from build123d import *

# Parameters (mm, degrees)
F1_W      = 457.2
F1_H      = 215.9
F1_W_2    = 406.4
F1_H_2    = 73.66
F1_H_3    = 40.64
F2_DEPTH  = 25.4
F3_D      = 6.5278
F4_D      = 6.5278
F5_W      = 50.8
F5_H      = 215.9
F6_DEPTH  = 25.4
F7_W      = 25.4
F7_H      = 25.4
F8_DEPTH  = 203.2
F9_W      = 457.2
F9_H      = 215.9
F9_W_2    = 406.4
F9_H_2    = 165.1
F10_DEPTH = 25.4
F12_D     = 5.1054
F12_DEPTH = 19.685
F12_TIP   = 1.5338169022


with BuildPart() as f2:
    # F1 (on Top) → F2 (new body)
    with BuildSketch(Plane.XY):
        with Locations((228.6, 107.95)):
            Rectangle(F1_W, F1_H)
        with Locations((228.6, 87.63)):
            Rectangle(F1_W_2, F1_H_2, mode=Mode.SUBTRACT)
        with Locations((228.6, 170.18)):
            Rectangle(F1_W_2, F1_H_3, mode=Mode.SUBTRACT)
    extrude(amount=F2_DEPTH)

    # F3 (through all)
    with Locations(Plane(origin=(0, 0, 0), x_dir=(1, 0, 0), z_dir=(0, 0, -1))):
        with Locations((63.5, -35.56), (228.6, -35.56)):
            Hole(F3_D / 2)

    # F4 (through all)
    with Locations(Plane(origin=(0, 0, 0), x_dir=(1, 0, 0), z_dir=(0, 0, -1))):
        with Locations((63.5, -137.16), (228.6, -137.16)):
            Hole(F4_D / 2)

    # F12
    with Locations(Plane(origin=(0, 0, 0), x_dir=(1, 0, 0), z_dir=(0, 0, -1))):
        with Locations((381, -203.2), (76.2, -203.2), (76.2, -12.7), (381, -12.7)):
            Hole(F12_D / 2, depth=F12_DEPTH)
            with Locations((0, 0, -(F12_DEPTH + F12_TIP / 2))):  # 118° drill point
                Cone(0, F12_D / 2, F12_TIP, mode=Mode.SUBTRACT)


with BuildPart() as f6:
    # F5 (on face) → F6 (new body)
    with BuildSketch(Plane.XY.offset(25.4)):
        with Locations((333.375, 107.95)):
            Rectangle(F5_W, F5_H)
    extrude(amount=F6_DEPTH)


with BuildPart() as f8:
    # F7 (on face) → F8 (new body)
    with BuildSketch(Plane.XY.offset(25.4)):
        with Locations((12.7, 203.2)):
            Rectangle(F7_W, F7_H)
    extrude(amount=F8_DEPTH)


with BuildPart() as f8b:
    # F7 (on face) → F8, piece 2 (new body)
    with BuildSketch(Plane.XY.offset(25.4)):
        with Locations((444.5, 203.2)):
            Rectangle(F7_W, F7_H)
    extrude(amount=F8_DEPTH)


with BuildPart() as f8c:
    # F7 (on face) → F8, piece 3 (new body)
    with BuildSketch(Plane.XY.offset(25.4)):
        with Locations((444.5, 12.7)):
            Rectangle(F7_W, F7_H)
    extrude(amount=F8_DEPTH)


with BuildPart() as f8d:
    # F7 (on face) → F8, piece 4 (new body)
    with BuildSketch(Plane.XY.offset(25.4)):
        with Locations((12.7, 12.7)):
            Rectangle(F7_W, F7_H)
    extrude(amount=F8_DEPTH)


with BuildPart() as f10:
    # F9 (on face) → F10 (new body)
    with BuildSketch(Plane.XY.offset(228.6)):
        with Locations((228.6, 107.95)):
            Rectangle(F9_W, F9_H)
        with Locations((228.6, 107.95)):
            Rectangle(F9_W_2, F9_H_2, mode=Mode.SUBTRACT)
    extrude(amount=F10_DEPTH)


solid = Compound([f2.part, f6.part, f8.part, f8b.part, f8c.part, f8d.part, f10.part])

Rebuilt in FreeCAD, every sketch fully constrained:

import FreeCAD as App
import Part
import Sketcher

V = App.Vector
Q = App.Units.Quantity


def add_polygon(sketch, points):
    """Adds a closed chain of lines whose ends are joined by coincident constraints."""
    first, n = sketch.GeometryCount, len(points)
    for a, b in zip(points, points[1:] + points[:1]):
        sketch.addGeometry(Part.LineSegment(App.Vector(*a, 0), App.Vector(*b, 0)), False)
    for i in range(n):
        sketch.addConstraint(Sketcher.Constraint("Coincident", first + i, 2, first + (i + 1) % n, 1))

doc = App.newDocument("Part")
body = doc.addObject("PartDesign::Body", "Body")

# Sketch on XY plane
sketch1 = body.newObject("Sketcher::SketchObject", "Sketch")
sketch1.AttachmentSupport = (doc.getObject("XY_Plane"), [""])
sketch1.MapMode = "FlatFace"
add_polygon(sketch1, [(0, 216), (0, 0), (457, 0), (457, 216)])  # lines 0-3
add_polygon(sketch1, [(432, 51), (25, 51), (25, 124), (432, 124)])  # lines 4-7
add_polygon(sketch1, [(432, 150), (25, 150), (25, 190), (432, 190)])  # lines 8-11
sketch1.addConstraint(Sketcher.Constraint("Vertical", 0))
sketch1.addConstraint(Sketcher.Constraint("Horizontal", 1))
sketch1.addConstraint(Sketcher.Constraint("Vertical", 2))
sketch1.addConstraint(Sketcher.Constraint("Horizontal", 3))
sketch1.addConstraint(Sketcher.Constraint("Horizontal", 4))
sketch1.addConstraint(Sketcher.Constraint("Vertical", 5))
sketch1.addConstraint(Sketcher.Constraint("Horizontal", 6))
sketch1.addConstraint(Sketcher.Constraint("Vertical", 7))
sketch1.addConstraint(Sketcher.Constraint("Horizontal", 8))
sketch1.addConstraint(Sketcher.Constraint("Vertical", 9))
sketch1.addConstraint(Sketcher.Constraint("Horizontal", 10))
sketch1.addConstraint(Sketcher.Constraint("Vertical", 11))
sketch1.addConstraint(Sketcher.Constraint("Coincident", 0, 2, -1, 1))
sketch1.addConstraint(Sketcher.Constraint("Vertical", 5, 2, 8, 2))
sketch1.addConstraint(Sketcher.Constraint("Vertical", 7, 2, 10, 2))
sketch1.addConstraint(Sketcher.Constraint("DistanceX", 1, 1, 1, 2, Q("18 in")))
sketch1.addConstraint(Sketcher.Constraint("DistanceX", 4, 2, 4, 1, Q("16 in")))
sketch1.addConstraint(Sketcher.Constraint("DistanceY", 0, 2, 0, 1, Q("8.5 in")))
sketch1.addConstraint(Sketcher.Constraint("DistanceY", 5, 1, 5, 2, Q("2.9 in")))
sketch1.addConstraint(Sketcher.Constraint("DistanceY", 9, 1, 9, 2, Q("1.6 in")))
sketch1.addConstraint(Sketcher.Constraint("DistanceX", -1, 1, 4, 2, Q("1 in")))
sketch1.addConstraint(Sketcher.Constraint("DistanceY", -1, 1, 4, 2, Q("2 in")))
sketch1.addConstraint(Sketcher.Constraint("DistanceY", 5, 2, 8, 2, Q("1 in")))
pad1 = body.newObject("PartDesign::Pad", "Pad")
pad1.Profile = sketch1
pad1.Length = Q("1 in")

# Sketch on XY plane
sketch2 = body.newObject("Sketcher::SketchObject", "Sketch001")
sketch2.AttachmentSupport = (doc.getObject("XY_Plane"), [""])
sketch2.MapMode = "FlatFace"
sketch2.addGeometry(Part.Circle(V(63.5, 35.6, 0), V(0, 0, 1), 3.3), False)
sketch2.addGeometry(Part.Circle(V(228.6, 35.6, 0), V(0, 0, 1), 3.3), False)
sketch2.addConstraint(Sketcher.Constraint("Equal", 0, 1))
sketch2.addConstraint(Sketcher.Constraint("Horizontal", 0, 3, 1, 3))
sketch2.addConstraint(Sketcher.Constraint("Diameter", 0, Q("0.257 in")))
sketch2.addConstraint(Sketcher.Constraint("DistanceX", -1, 1, 1, 3, Q("9 in")))
sketch2.addConstraint(Sketcher.Constraint("DistanceX", -1, 1, 0, 3, Q("2.5 in")))
sketch2.addConstraint(Sketcher.Constraint("DistanceY", -1, 1, 0, 3, Q("1.4 in")))
doc.recompute()
hole = body.newObject("PartDesign::Hole", "Hole")
hole.Profile = sketch2
hole.ThreadType = "None"
hole.Diameter = Q("0.257 in")
hole.DepthType = "ThroughAll"
hole.Reversed = True

# Sketch on XY plane
sketch3 = body.newObject("Sketcher::SketchObject", "Sketch002")
sketch3.AttachmentSupport = (doc.getObject("XY_Plane"), [""])
sketch3.MapMode = "FlatFace"
sketch3.addGeometry(Part.Circle(V(63.5, 137.2, 0), V(0, 0, 1), 3.3), False)
sketch3.addGeometry(Part.Circle(V(228.6, 137.2, 0), V(0, 0, 1), 3.3), False)
sketch3.addConstraint(Sketcher.Constraint("Equal", 0, 1))
sketch3.addConstraint(Sketcher.Constraint("Horizontal", 0, 3, 1, 3))
sketch3.addConstraint(Sketcher.Constraint("Diameter", 0, Q("0.257 in")))
sketch3.addConstraint(Sketcher.Constraint("DistanceX", -1, 1, 1, 3, Q("9 in")))
sketch3.addConstraint(Sketcher.Constraint("DistanceX", -1, 1, 0, 3, Q("2.5 in")))
sketch3.addConstraint(Sketcher.Constraint("DistanceY", -1, 1, 0, 3, Q("5.4 in")))
doc.recompute()
hole2 = body.newObject("PartDesign::Hole", "Hole001")
hole2.Profile = sketch3
hole2.ThreadType = "None"
hole2.Diameter = Q("0.257 in")
hole2.DepthType = "ThroughAll"
hole2.Reversed = True

# Sketch on XY plane
sketch4 = body.newObject("Sketcher::SketchObject", "Sketch003")
sketch4.AttachmentSupport = (doc.getObject("XY_Plane"), [""])
sketch4.MapMode = "FlatFace"
sketch4.addGeometry(Part.Circle(V(381, 203.2, 0), V(0, 0, 1), 2.6), False)
sketch4.addGeometry(Part.Circle(V(76.2, 203.2, 0), V(0, 0, 1), 2.6), False)
sketch4.addGeometry(Part.Circle(V(76.2, 12.7, 0), V(0, 0, 1), 2.6), False)
sketch4.addGeometry(Part.Circle(V(381, 12.7, 0), V(0, 0, 1), 2.6), False)
sketch4.addConstraint(Sketcher.Constraint("Equal", 0, 1))
sketch4.addConstraint(Sketcher.Constraint("Equal", 1, 2))
sketch4.addConstraint(Sketcher.Constraint("Equal", 2, 3))
sketch4.addConstraint(Sketcher.Constraint("Horizontal", 0, 3, 1, 3))
sketch4.addConstraint(Sketcher.Constraint("Horizontal", 2, 3, 3, 3))
sketch4.addConstraint(Sketcher.Constraint("Vertical", 1, 3, 2, 3))
sketch4.addConstraint(Sketcher.Constraint("Vertical", 0, 3, 3, 3))
sketch4.addConstraint(Sketcher.Constraint("Diameter", 0, Q("0.201 in")))
sketch4.addConstraint(Sketcher.Constraint("DistanceX", -1, 1, 0, 3, Q("15 in")))
sketch4.addConstraint(Sketcher.Constraint("DistanceY", -1, 1, 0, 3, Q("8 in")))
sketch4.addConstraint(Sketcher.Constraint("DistanceX", -1, 1, 1, 3, Q("3 in")))
sketch4.addConstraint(Sketcher.Constraint("DistanceY", -1, 1, 2, 3, Q("0.5 in")))
doc.recompute()
hole3 = body.newObject("PartDesign::Hole", "Hole002")
hole3.Profile = sketch4
hole3.ThreadType = "None"
hole3.Diameter = Q("0.201 in")
hole3.DepthType = "Dimension"
hole3.Depth = Q("0.775 in")
hole3.DrillPoint = "Angled"
hole3.DrillPointAngle = 118
hole3.Reversed = True
body2 = doc.addObject("PartDesign::Body", "Body001")

# Sketch on XY plane
sketch5 = body2.newObject("Sketcher::SketchObject", "Sketch004")
sketch5.AttachmentSupport = (doc.getObject("XY_Plane001"), [""])
sketch5.MapMode = "FlatFace"
sketch5.AttachmentOffset = App.Placement(V(0, 0, 1 * 25.4), App.Rotation())
add_polygon(sketch5, [(308, 216), (308, 0), (359, 0), (359, 216)])  # lines 0-3
sketch5.addConstraint(Sketcher.Constraint("Vertical", 0))
sketch5.addConstraint(Sketcher.Constraint("Horizontal", 1))
sketch5.addConstraint(Sketcher.Constraint("Vertical", 2))
sketch5.addConstraint(Sketcher.Constraint("Horizontal", 3))
sketch5.addConstraint(Sketcher.Constraint("PointOnObject", 0, 2, -1))
sketch5.addConstraint(Sketcher.Constraint("DistanceX", 1, 1, 1, 2, Q("2 in")))
sketch5.addConstraint(Sketcher.Constraint("DistanceY", 0, 2, 0, 1, Q("8.5 in")))
sketch5.addConstraint(Sketcher.Constraint("DistanceX", -1, 1, 0, 2, Q("12.125 in")))
pad2 = body2.newObject("PartDesign::Pad", "Pad001")
pad2.Profile = sketch5
pad2.Length = Q("1 in")
body3 = doc.addObject("PartDesign::Body", "Body002")

# Sketch on XY plane
sketch6 = body3.newObject("Sketcher::SketchObject", "Sketch005")
sketch6.AttachmentSupport = (doc.getObject("XY_Plane002"), [""])
sketch6.MapMode = "FlatFace"
sketch6.AttachmentOffset = App.Placement(V(0, 0, 1 * 25.4), App.Rotation())
add_polygon(sketch6, [(0, 216), (0, 190), (25, 190), (25, 216)])  # lines 0-3
sketch6.addConstraint(Sketcher.Constraint("Vertical", 0))
sketch6.addConstraint(Sketcher.Constraint("Horizontal", 1))
sketch6.addConstraint(Sketcher.Constraint("Vertical", 2))
sketch6.addConstraint(Sketcher.Constraint("Horizontal", 3))
sketch6.addConstraint(Sketcher.Constraint("PointOnObject", 0, 2, -2))
sketch6.addConstraint(Sketcher.Constraint("Equal", 3, 0))
sketch6.addConstraint(Sketcher.Constraint("DistanceX", 1, 1, 1, 2, Q("1 in")))
sketch6.addConstraint(Sketcher.Constraint("DistanceY", -1, 1, 0, 2, Q("7.5 in")))
pad3 = body3.newObject("PartDesign::Pad", "Pad002")
pad3.Profile = sketch6
pad3.Length = Q("8 in")
body4 = doc.addObject("PartDesign::Body", "Body003")

# Sketch on XY plane
sketch7 = body4.newObject("Sketcher::SketchObject", "Sketch006")
sketch7.AttachmentSupport = (doc.getObject("XY_Plane003"), [""])
sketch7.MapMode = "FlatFace"
sketch7.AttachmentOffset = App.Placement(V(0, 0, 1 * 25.4), App.Rotation())
add_polygon(sketch7, [(432, 216), (432, 190), (457, 190), (457, 216)])  # lines 0-3
sketch7.addConstraint(Sketcher.Constraint("Vertical", 0))
sketch7.addConstraint(Sketcher.Constraint("Horizontal", 1))
sketch7.addConstraint(Sketcher.Constraint("Vertical", 2))
sketch7.addConstraint(Sketcher.Constraint("Horizontal", 3))
sketch7.addConstraint(Sketcher.Constraint("Equal", 3, 0))
sketch7.addConstraint(Sketcher.Constraint("DistanceX", 1, 1, 1, 2, Q("1 in")))
sketch7.addConstraint(Sketcher.Constraint("DistanceX", -1, 1, 0, 2, Q("17 in")))
sketch7.addConstraint(Sketcher.Constraint("DistanceY", -1, 1, 0, 2, Q("7.5 in")))
pad4 = body4.newObject("PartDesign::Pad", "Pad003")
pad4.Profile = sketch7
pad4.Length = Q("8 in")
body5 = doc.addObject("PartDesign::Body", "Body004")

# Sketch on XY plane
sketch8 = body5.newObject("Sketcher::SketchObject", "Sketch007")
sketch8.AttachmentSupport = (doc.getObject("XY_Plane004"), [""])
sketch8.MapMode = "FlatFace"
sketch8.AttachmentOffset = App.Placement(V(0, 0, 1 * 25.4), App.Rotation())
add_polygon(sketch8, [(432, 25), (432, 0), (457, 0), (457, 25)])  # lines 0-3
sketch8.addConstraint(Sketcher.Constraint("Vertical", 0))
sketch8.addConstraint(Sketcher.Constraint("Horizontal", 1))
sketch8.addConstraint(Sketcher.Constraint("Vertical", 2))
sketch8.addConstraint(Sketcher.Constraint("Horizontal", 3))
sketch8.addConstraint(Sketcher.Constraint("PointOnObject", 0, 2, -1))
sketch8.addConstraint(Sketcher.Constraint("Equal", 3, 0))
sketch8.addConstraint(Sketcher.Constraint("DistanceX", 1, 1, 1, 2, Q("1 in")))
sketch8.addConstraint(Sketcher.Constraint("DistanceX", -1, 1, 0, 2, Q("17 in")))
pad5 = body5.newObject("PartDesign::Pad", "Pad004")
pad5.Profile = sketch8
pad5.Length = Q("8 in")
body6 = doc.addObject("PartDesign::Body", "Body005")

# Sketch on XY plane
sketch9 = body6.newObject("Sketcher::SketchObject", "Sketch008")
sketch9.AttachmentSupport = (doc.getObject("XY_Plane005"), [""])
sketch9.MapMode = "FlatFace"
sketch9.AttachmentOffset = App.Placement(V(0, 0, 1 * 25.4), App.Rotation())
add_polygon(sketch9, [(0, 25), (0, 0), (25, 0), (25, 25)])  # lines 0-3
sketch9.addConstraint(Sketcher.Constraint("Vertical", 0))
sketch9.addConstraint(Sketcher.Constraint("Horizontal", 1))
sketch9.addConstraint(Sketcher.Constraint("Vertical", 2))
sketch9.addConstraint(Sketcher.Constraint("Horizontal", 3))
sketch9.addConstraint(Sketcher.Constraint("Coincident", 0, 2, -1, 1))
sketch9.addConstraint(Sketcher.Constraint("Equal", 3, 0))
sketch9.addConstraint(Sketcher.Constraint("DistanceX", 1, 1, 1, 2, Q("1 in")))
pad6 = body6.newObject("PartDesign::Pad", "Pad005")
pad6.Profile = sketch9
pad6.Length = Q("8 in")
body7 = doc.addObject("PartDesign::Body", "Body006")

# Sketch on XY plane
sketch10 = body7.newObject("Sketcher::SketchObject", "Sketch009")
sketch10.AttachmentSupport = (doc.getObject("XY_Plane006"), [""])
sketch10.MapMode = "FlatFace"
sketch10.AttachmentOffset = App.Placement(V(0, 0, 9 * 25.4), App.Rotation())
add_polygon(sketch10, [(0, 216), (0, 0), (457, 0), (457, 216)])  # lines 0-3
add_polygon(sketch10, [(432, 25), (25, 25), (25, 190), (432, 190)])  # lines 4-7
sketch10.addConstraint(Sketcher.Constraint("Vertical", 0))
sketch10.addConstraint(Sketcher.Constraint("Horizontal", 1))
sketch10.addConstraint(Sketcher.Constraint("Vertical", 2))
sketch10.addConstraint(Sketcher.Constraint("Horizontal", 3))
sketch10.addConstraint(Sketcher.Constraint("Horizontal", 4))
sketch10.addConstraint(Sketcher.Constraint("Vertical", 5))
sketch10.addConstraint(Sketcher.Constraint("Horizontal", 6))
sketch10.addConstraint(Sketcher.Constraint("Vertical", 7))
sketch10.addConstraint(Sketcher.Constraint("Coincident", 0, 2, -1, 1))
sketch10.addConstraint(Sketcher.Constraint("DistanceX", 1, 1, 1, 2, Q("18 in")))
sketch10.addConstraint(Sketcher.Constraint("DistanceX", 4, 2, 4, 1, Q("16 in")))
sketch10.addConstraint(Sketcher.Constraint("DistanceY", 0, 2, 0, 1, Q("8.5 in")))
sketch10.addConstraint(Sketcher.Constraint("DistanceY", 5, 1, 5, 2, Q("6.5 in")))
sketch10.addConstraint(Sketcher.Constraint("DistanceX", -1, 1, 4, 2, Q("1 in")))
sketch10.addConstraint(Sketcher.Constraint("DistanceY", -1, 1, 4, 2, Q("1 in")))
pad7 = body7.newObject("PartDesign::Pad", "Pad006")
pad7.Profile = sketch10
pad7.Length = Q("1 in")

doc.recompute()
